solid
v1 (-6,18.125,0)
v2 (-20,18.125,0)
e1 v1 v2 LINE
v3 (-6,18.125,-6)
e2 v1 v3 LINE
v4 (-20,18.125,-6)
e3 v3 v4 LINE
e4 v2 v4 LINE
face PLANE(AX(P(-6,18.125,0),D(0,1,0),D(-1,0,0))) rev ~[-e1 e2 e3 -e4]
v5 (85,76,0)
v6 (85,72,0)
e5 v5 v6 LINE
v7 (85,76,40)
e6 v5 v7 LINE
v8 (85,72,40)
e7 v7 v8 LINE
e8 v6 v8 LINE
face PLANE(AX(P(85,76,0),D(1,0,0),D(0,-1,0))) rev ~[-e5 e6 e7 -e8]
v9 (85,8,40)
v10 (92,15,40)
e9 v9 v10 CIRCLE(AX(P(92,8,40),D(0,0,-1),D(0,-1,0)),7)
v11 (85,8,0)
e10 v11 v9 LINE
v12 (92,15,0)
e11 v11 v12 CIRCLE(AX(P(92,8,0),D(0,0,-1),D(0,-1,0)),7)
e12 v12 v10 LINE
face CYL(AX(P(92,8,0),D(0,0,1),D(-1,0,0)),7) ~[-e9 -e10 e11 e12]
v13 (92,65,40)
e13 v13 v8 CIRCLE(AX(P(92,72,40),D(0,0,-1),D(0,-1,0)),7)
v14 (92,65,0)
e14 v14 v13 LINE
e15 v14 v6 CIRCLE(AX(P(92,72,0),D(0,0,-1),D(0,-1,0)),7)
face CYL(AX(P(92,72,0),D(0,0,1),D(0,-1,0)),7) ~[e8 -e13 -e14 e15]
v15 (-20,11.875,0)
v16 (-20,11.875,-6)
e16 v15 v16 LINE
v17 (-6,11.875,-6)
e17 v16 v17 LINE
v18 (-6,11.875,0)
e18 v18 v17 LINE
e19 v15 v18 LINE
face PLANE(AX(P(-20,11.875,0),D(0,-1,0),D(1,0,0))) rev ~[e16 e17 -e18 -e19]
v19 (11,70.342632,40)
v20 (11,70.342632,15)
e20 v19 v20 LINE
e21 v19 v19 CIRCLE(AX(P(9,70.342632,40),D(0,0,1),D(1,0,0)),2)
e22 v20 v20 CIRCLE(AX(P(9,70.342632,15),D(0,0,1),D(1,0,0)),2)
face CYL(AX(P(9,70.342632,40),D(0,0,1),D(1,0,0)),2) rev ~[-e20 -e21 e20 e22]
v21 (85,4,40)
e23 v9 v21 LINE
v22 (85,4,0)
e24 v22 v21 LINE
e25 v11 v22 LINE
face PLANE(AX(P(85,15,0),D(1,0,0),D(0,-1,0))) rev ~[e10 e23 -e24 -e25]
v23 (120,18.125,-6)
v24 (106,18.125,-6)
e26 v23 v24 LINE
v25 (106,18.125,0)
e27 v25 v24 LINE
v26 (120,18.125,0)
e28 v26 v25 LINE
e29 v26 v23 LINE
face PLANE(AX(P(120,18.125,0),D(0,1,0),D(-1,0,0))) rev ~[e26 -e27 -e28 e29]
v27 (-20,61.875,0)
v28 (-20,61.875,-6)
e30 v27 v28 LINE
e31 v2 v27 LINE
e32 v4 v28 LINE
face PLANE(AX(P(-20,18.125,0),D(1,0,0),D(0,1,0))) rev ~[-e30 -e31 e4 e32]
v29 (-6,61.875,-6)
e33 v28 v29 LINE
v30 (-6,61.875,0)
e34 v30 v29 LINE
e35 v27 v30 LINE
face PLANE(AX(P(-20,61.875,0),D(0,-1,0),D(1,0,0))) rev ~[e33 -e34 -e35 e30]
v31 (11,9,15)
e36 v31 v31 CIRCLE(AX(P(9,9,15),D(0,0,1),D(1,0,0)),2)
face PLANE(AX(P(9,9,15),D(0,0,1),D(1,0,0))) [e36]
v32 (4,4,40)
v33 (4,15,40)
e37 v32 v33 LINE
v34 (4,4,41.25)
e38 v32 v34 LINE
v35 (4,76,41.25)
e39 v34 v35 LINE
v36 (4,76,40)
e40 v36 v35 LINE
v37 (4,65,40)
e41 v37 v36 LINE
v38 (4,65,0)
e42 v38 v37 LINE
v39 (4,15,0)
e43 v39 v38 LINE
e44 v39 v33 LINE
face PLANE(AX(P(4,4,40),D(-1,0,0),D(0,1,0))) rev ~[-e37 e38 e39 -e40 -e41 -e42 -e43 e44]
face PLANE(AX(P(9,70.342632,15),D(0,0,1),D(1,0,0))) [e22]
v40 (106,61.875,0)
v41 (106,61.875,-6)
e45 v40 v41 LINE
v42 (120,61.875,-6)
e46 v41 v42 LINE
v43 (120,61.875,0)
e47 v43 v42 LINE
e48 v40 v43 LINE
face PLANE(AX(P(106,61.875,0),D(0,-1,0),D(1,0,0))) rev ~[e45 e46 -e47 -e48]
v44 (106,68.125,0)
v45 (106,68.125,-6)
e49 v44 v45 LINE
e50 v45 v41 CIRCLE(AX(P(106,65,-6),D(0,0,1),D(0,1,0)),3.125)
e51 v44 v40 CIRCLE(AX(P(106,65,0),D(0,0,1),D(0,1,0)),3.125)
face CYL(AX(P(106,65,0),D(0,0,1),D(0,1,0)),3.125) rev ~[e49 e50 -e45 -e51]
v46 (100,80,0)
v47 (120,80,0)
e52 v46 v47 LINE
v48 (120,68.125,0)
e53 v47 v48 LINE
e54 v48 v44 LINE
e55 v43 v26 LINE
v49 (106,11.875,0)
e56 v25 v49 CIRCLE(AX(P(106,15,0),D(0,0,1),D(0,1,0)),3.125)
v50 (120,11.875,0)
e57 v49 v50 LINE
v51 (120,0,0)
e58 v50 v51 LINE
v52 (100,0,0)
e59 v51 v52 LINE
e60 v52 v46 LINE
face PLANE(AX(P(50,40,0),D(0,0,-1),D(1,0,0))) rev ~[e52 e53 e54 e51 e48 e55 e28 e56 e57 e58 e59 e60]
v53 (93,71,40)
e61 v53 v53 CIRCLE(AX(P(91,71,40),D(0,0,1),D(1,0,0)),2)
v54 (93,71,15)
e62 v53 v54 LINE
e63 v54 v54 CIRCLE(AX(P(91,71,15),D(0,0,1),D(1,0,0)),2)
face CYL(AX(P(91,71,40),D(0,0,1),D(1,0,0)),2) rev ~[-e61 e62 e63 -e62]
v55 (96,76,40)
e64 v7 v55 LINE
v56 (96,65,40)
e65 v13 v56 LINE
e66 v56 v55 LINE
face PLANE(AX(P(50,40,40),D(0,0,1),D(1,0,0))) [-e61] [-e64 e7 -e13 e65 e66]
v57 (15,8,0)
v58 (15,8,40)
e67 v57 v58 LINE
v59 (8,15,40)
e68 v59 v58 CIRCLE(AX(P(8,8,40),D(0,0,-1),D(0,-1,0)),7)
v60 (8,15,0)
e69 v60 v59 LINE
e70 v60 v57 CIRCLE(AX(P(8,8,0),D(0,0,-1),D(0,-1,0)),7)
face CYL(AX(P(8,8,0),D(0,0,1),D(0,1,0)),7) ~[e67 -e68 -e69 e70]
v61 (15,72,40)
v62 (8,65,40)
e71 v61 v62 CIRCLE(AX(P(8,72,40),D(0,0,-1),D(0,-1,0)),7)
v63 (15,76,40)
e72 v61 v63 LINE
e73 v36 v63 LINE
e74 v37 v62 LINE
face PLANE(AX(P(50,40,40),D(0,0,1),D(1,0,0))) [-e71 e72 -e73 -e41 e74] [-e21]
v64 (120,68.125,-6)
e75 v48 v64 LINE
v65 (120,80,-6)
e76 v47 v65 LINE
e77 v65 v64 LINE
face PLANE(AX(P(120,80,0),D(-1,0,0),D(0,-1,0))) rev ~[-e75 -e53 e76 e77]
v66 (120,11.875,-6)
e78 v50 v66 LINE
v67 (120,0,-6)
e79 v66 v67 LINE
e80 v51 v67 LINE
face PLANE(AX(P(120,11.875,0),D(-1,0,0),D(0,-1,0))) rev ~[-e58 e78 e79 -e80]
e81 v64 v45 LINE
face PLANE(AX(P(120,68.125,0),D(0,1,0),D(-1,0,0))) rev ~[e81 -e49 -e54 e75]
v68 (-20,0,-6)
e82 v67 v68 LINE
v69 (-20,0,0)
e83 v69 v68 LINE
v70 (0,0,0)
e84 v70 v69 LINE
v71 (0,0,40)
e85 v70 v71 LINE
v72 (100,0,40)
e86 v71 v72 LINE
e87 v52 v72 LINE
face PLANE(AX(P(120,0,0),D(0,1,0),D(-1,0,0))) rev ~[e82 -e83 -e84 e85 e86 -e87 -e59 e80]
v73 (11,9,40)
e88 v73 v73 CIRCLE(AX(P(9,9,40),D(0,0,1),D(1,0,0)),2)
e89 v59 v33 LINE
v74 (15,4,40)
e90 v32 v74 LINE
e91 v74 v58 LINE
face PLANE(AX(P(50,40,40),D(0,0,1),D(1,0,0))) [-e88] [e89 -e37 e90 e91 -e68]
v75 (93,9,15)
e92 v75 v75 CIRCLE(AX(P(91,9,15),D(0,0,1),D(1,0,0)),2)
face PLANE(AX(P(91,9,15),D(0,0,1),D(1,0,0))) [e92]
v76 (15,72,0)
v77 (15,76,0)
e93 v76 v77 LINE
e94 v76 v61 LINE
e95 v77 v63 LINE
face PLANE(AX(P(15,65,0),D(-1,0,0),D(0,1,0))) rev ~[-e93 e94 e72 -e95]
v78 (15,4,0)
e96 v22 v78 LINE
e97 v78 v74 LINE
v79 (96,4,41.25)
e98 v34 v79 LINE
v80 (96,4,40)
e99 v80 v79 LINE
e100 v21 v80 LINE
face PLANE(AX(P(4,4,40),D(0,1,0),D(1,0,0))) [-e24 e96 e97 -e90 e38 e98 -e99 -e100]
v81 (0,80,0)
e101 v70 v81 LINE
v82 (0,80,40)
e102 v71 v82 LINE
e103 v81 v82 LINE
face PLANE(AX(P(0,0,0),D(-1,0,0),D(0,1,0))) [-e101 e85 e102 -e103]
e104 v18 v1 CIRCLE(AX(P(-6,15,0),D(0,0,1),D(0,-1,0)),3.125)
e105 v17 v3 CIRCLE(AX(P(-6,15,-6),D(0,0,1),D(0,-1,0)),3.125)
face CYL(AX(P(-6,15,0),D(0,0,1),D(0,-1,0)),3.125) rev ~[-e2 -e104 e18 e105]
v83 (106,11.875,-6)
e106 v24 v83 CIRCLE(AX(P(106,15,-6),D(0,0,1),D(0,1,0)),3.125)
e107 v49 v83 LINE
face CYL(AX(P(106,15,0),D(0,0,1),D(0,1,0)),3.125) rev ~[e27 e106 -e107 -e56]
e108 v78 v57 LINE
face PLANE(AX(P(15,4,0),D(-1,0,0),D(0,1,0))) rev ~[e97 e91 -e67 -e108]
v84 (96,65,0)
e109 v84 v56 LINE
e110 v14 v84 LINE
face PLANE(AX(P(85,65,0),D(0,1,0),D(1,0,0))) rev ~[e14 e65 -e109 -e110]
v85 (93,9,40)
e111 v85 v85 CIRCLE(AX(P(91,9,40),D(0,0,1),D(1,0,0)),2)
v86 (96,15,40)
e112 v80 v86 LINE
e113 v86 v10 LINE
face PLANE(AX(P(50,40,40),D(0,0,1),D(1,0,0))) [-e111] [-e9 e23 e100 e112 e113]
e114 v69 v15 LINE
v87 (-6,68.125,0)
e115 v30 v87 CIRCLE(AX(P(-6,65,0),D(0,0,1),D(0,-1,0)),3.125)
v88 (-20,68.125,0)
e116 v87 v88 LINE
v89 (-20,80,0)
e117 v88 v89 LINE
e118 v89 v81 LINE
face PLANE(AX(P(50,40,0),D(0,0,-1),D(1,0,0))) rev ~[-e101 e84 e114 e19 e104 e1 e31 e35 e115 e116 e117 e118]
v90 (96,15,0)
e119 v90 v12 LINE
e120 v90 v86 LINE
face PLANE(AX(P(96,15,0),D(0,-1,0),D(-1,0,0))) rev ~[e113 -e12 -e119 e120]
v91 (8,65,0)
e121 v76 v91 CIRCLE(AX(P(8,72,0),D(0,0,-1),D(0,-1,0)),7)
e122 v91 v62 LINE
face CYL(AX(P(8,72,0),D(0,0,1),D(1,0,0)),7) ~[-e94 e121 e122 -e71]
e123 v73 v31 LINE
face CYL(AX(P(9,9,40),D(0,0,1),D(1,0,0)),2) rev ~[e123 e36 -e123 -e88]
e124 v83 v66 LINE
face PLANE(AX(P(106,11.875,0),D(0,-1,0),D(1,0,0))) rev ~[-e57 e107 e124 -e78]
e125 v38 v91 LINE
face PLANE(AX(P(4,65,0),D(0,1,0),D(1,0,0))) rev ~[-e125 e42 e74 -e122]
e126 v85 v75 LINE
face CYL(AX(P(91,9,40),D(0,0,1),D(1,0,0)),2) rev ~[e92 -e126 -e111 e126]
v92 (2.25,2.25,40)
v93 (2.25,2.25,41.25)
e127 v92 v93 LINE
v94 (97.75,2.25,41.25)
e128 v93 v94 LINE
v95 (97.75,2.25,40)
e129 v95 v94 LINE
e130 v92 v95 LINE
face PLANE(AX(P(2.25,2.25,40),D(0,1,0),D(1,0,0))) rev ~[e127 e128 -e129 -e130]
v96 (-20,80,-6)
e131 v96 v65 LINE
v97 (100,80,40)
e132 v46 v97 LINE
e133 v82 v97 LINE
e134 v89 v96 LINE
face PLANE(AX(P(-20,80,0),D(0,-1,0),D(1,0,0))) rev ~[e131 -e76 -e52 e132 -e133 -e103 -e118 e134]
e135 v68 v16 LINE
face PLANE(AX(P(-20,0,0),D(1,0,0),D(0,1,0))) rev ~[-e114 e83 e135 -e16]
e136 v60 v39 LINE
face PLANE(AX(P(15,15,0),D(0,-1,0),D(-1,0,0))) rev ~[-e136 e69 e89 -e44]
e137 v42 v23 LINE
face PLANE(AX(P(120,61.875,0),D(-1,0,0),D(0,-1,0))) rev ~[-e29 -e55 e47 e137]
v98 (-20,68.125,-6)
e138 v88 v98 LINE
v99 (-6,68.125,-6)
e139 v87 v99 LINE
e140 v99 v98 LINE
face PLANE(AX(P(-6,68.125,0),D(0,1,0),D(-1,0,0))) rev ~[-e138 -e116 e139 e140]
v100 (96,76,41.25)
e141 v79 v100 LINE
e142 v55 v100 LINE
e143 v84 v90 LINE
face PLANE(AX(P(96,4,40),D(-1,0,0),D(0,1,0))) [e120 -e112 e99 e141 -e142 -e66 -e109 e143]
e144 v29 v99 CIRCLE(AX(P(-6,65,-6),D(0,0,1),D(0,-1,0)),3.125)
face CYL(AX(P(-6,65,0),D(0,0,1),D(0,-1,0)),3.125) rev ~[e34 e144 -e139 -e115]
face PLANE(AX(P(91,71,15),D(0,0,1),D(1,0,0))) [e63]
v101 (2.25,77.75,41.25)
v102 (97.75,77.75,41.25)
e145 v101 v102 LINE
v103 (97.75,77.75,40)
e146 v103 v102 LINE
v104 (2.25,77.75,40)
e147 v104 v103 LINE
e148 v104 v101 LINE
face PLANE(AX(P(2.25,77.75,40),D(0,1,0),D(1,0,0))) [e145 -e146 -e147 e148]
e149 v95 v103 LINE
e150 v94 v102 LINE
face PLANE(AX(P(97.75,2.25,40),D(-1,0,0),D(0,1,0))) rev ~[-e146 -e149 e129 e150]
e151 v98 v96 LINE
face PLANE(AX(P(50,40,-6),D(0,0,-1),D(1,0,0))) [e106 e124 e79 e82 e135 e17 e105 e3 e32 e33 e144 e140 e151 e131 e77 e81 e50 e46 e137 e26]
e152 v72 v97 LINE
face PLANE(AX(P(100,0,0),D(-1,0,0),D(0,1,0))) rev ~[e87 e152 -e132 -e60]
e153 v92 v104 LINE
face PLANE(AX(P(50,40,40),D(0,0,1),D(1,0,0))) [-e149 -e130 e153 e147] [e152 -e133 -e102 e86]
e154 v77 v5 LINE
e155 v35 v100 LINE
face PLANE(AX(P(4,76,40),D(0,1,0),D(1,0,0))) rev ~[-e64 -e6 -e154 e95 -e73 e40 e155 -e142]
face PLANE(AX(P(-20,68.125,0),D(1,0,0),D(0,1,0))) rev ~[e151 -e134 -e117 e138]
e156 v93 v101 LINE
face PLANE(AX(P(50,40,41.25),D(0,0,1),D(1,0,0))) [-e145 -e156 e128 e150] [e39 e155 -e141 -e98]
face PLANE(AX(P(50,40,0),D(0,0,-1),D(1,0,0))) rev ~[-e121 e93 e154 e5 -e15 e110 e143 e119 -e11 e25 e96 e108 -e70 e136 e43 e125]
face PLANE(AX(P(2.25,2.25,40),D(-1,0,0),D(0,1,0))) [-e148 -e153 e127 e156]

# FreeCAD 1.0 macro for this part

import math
import FreeCAD as App
import Part
import Sketcher
from FreeCAD import Vector
Q = App.Units.Quantity


def edges_at(feature, points):
    """Names of the edges that pass closest to the given points."""
    edges = feature.Shape.Edges
    near = lambda p: min(range(len(edges)), key=lambda i: edges[i].distToShape(Part.Vertex(*p))[0])
    return sorted({f"Edge{near(p) + 1}" for p in points})


def add_polygon(sketch, points):
    """Adds a closed chain of lines whose ends are joined by coincident constraints."""
    first, n = sketch.GeometryCount, len(points)
    for a, b in zip(points, points[1:] + points[:1]):
        sketch.addGeometry(Part.LineSegment(App.Vector(*a, 0), App.Vector(*b, 0)), False)
    for i in range(n):
        sketch.addConstraint(Sketcher.Constraint("Coincident", first + i, 2, first + (i + 1) % n, 1))

doc = App.newDocument("Part")
body = doc.addObject("PartDesign::Body", "Body")

# Sketch on XY plane
sketch1 = body.newObject("Sketcher::SketchObject", "Sketch")
sketch1.AttachmentSupport = (doc.getObject("XY_Plane"), [""])
sketch1.MapMode = "FlatFace"
add_polygon(sketch1, [(0, 80), (0, 0), (100, 0), (100, 80)])  # lines 0-3
add_polygon(sketch1, [(85, 15), (85, 4), (15, 4), (15, 15), (4, 15), (4, 65), (15, 65), (15, 76), (85, 76), (85, 65), (96, 65), (96, 15)])  # lines 4-15
sketch1.addConstraint([
    Sketcher.Constraint("Vertical", 0),
    Sketcher.Constraint("Horizontal", 1),
    Sketcher.Constraint("Vertical", 2),
    Sketcher.Constraint("Horizontal", 3),
    Sketcher.Constraint("Vertical", 4),
    Sketcher.Constraint("Horizontal", 5),
    Sketcher.Constraint("Vertical", 6),
    Sketcher.Constraint("Horizontal", 7),
    Sketcher.Constraint("Vertical", 8),
    Sketcher.Constraint("Horizontal", 9),
    Sketcher.Constraint("Vertical", 10),
    Sketcher.Constraint("Horizontal", 11),
    Sketcher.Constraint("Vertical", 12),
    Sketcher.Constraint("Horizontal", 13),
    Sketcher.Constraint("Vertical", 14),
    Sketcher.Constraint("Horizontal", 15),
    Sketcher.Constraint("Coincident", 0, 2, -1, 1),
    Sketcher.Constraint("Horizontal", 9, 2, 12, 2),
    Sketcher.Constraint("Horizontal", 7, 2, 14, 2),
    Sketcher.Constraint("Vertical", 6, 2, 9, 2),
    Sketcher.Constraint("Vertical", 4, 2, 11, 2),
    Sketcher.Constraint("Equal", 9, 13),
    Sketcher.Constraint("Equal", 15, 4),
    Sketcher.Constraint("Equal", 6, 10),
    Sketcher.Constraint("DistanceX", 1, 1, 1, 2, Q("100 mm")),
    Sketcher.Constraint("DistanceX", 5, 2, 5, 1, Q("70 mm")),
    Sketcher.Constraint("DistanceX", 7, 2, 7, 1, Q("11 mm")),
    Sketcher.Constraint("DistanceY", 0, 2, 0, 1, Q("80 mm")),
    Sketcher.Constraint("DistanceY", 8, 1, 8, 2, Q("50 mm")),
    Sketcher.Constraint("DistanceX", -1, 1, 4, 2, Q("85 mm")),
    Sketcher.Constraint("DistanceY", -1, 1, 4, 2, Q("4 mm")),
])
pad1 = body.newObject("PartDesign::Pad", "Pad")
pad1.Profile = sketch1
pad1.Length = 40

# Sketch on XY plane
sketch2 = body.newObject("Sketcher::SketchObject", "Sketch001")
sketch2.AttachmentSupport = (doc.getObject("XY_Plane"), [""])
sketch2.MapMode = "FlatFace"
sketch2.addGeometry([
    Part.LineSegment(Vector(120, 0, 0), Vector(-20, 0, 0)),  # 0
    Part.LineSegment(Vector(-20, 0, 0), Vector(-20, 11.9, 0)),  # 1
    Part.LineSegment(Vector(-20, 11.9, 0), Vector(-6, 11.9, 0)),  # 2
    Part.ArcOfCircle(Part.Circle(Vector(-6, 15, 0), Vector(0, 0, 1), 3.1), math.radians(-90), math.radians(90)),  # 3
    Part.LineSegment(Vector(-6, 18.1, 0), Vector(-20, 18.1, 0)),  # 4
    Part.LineSegment(Vector(-20, 18.1, 0), Vector(-20, 61.9, 0)),  # 5
    Part.LineSegment(Vector(-20, 61.9, 0), Vector(-6, 61.9, 0)),  # 6
    Part.ArcOfCircle(Part.Circle(Vector(-6, 65, 0), Vector(0, 0, 1), 3.1), math.radians(-90), math.radians(90)),  # 7
    Part.LineSegment(Vector(-6, 68.1, 0), Vector(-20, 68.1, 0)),  # 8
    Part.LineSegment(Vector(-20, 68.1, 0), Vector(-20, 80, 0)),  # 9
    Part.LineSegment(Vector(-20, 80, 0), Vector(120, 80, 0)),  # 10
    Part.LineSegment(Vector(120, 80, 0), Vector(120, 68.1, 0)),  # 11
    Part.LineSegment(Vector(120, 68.1, 0), Vector(106, 68.1, 0)),  # 12
    Part.ArcOfCircle(Part.Circle(Vector(106, 65, 0), Vector(0, 0, 1), 3.1), math.radians(90), math.radians(270)),  # 13
    Part.LineSegment(Vector(106, 61.9, 0), Vector(120, 61.9, 0)),  # 14
    Part.LineSegment(Vector(120, 61.9, 0), Vector(120, 18.1, 0)),  # 15
    Part.LineSegment(Vector(120, 18.1, 0), Vector(106, 18.1, 0)),  # 16
    Part.ArcOfCircle(Part.Circle(Vector(106, 15, 0), Vector(0, 0, 1), 3.1), math.radians(90), math.radians(270)),  # 17
    Part.LineSegment(Vector(106, 11.9, 0), Vector(120, 11.9, 0)),  # 18
    Part.LineSegment(Vector(120, 11.9, 0), Vector(120, 0, 0)),  # 19
], False)
sketch2.addConstraint([
    Sketcher.Constraint("Coincident", 0, 2, 1, 1),
    Sketcher.Constraint("Coincident", 1, 2, 2, 1),
    Sketcher.Constraint("Tangent", 2, 2, 3, 1),
    Sketcher.Constraint("Tangent", 3, 2, 4, 1),
    Sketcher.Constraint("Coincident", 4, 2, 5, 1),
    Sketcher.Constraint("Coincident", 5, 2, 6, 1),
    Sketcher.Constraint("Tangent", 6, 2, 7, 1),
    Sketcher.Constraint("Tangent", 7, 2, 8, 1),
    Sketcher.Constraint("Coincident", 8, 2, 9, 1),
    Sketcher.Constraint("Coincident", 9, 2, 10, 1),
    Sketcher.Constraint("Coincident", 10, 2, 11, 1),
    Sketcher.Constraint("Coincident", 11, 2, 12, 1),
    Sketcher.Constraint("Tangent", 12, 2, 13, 1),
    Sketcher.Constraint("Tangent", 13, 2, 14, 1),
    Sketcher.Constraint("Coincident", 14, 2, 15, 1),
    Sketcher.Constraint("Coincident", 15, 2, 16, 1),
    Sketcher.Constraint("Tangent", 16, 2, 17, 1),
    Sketcher.Constraint("Tangent", 17, 2, 18, 1),
    Sketcher.Constraint("Coincident", 18, 2, 19, 1),
    Sketcher.Constraint("Coincident", 19, 2, 0, 1),
    Sketcher.Constraint("Horizontal", 0),
    Sketcher.Constraint("Vertical", 1),
    Sketcher.Constraint("Horizontal", 2),
    Sketcher.Constraint("Horizontal", 4),
    Sketcher.Constraint("Vertical", 5),
    Sketcher.Constraint("Horizontal", 6),
    Sketcher.Constraint("Horizontal", 8),
    Sketcher.Constraint("Vertical", 9),
    Sketcher.Constraint("Horizontal", 10),
    Sketcher.Constraint("Vertical", 11),
    Sketcher.Constraint("Horizontal", 12),
    Sketcher.Constraint("Horizontal", 14),
    Sketcher.Constraint("Vertical", 15),
    Sketcher.Constraint("Horizontal", 16),
    Sketcher.Constraint("Horizontal", 18),
    Sketcher.Constraint("Vertical", 19),
    Sketcher.Constraint("Equal", 3, 7),
    Sketcher.Constraint("Equal", 7, 13),
    Sketcher.Constraint("Equal", 13, 17),
    Sketcher.Constraint("PointOnObject", 0, 2, -1),
    Sketcher.Constraint("Horizontal", 7, 3, 13, 3),
    Sketcher.Constraint("Horizontal", 3, 3, 17, 3),
    Sketcher.Constraint("Vertical", 3, 3, 7, 3),
    Sketcher.Constraint("Vertical", 13, 3, 17, 3),
    Sketcher.Constraint("Vertical", 1, 2, 4, 2),
    Sketcher.Constraint("Vertical", 5, 2, 8, 2),
    Sketcher.Constraint("Vertical", 11, 2, 14, 2),
    Sketcher.Constraint("Vertical", 15, 2, 18, 2),
    Sketcher.Constraint("Equal", 8, 12),
    Sketcher.Constraint("Equal", 1, 9),
    Sketcher.Constraint("DistanceX", 0, 2, 0, 1, Q("140 mm")),
    Sketcher.Constraint("DistanceX", 2, 1, 2, 2, Q("14 mm")),
    Sketcher.Constraint("DistanceX", 3, 3, -1, 1, Q("6 mm")),
    Sketcher.Constraint("DistanceY", -1, 1, 3, 3, Q("15 mm")),
    Sketcher.Constraint("DistanceY", -1, 1, 7, 3, Q("65 mm")),
    Sketcher.Constraint("Radius", 3, Q("3.125 mm")),
])
pad2 = body.newObject("PartDesign::Pad", "Pad001")
pad2.Profile = sketch2
pad2.Length = 6
pad2.Reversed = True
doc.recompute()

fillet = body.newObject("PartDesign::Fillet", "Fillet")
fillet.Base = (pad2, edges_at(pad2, [
    (15, 65, 20),
    (15, 15, 20),
    (85, 65, 20),
    (85, 15, 20),
]))
fillet.Radius = 7

# Sketch on XY plane
sketch3 = body.newObject("Sketcher::SketchObject", "Sketch002")
sketch3.AttachmentSupport = (doc.getObject("XY_Plane"), [""])
sketch3.MapMode = "FlatFace"
sketch3.AttachmentOffset = App.Placement(Vector(0, 0, 40), App.Rotation())
add_polygon(sketch3, [(2, 78), (2, 2), (98, 2), (98, 78)])  # lines 0-3
add_polygon(sketch3, [(96, 4), (4, 4), (4, 76), (96, 76)])  # lines 4-7
sketch3.addConstraint([
    Sketcher.Constraint("Vertical", 0),
    Sketcher.Constraint("Horizontal", 1),
    Sketcher.Constraint("Vertical", 2),
    Sketcher.Constraint("Horizontal", 3),
    Sketcher.Constraint("Horizontal", 4),
    Sketcher.Constraint("Vertical", 5),
    Sketcher.Constraint("Horizontal", 6),
    Sketcher.Constraint("Vertical", 7),
    Sketcher.Constraint("DistanceX", 4, 2, 4, 1, Q("92 mm")),
    Sketcher.Constraint("DistanceY", 5, 1, 5, 2, Q("72 mm")),
    Sketcher.Constraint("DistanceX", 1, 1, 1, 2, Q("95.5 mm")),
    Sketcher.Constraint("DistanceY", 0, 2, 0, 1, Q("75.5 mm")),
    Sketcher.Constraint("DistanceX", -1, 1, 4, 2, Q("4 mm")),
    Sketcher.Constraint("DistanceY", -1, 1, 4, 2, Q("4 mm")),
    Sketcher.Constraint("DistanceX", -1, 1, 0, 2, Q("2.25 mm")),
    Sketcher.Constraint("DistanceY", -1, 1, 0, 2, Q("2.25 mm")),
])
pad3 = body.newObject("PartDesign::Pad", "Pad002")
pad3.Profile = sketch3
pad3.Length = 1.25

# Sketch on XY plane
sketch4 = body.newObject("Sketcher::SketchObject", "Sketch003")
sketch4.AttachmentSupport = (doc.getObject("XY_Plane"), [""])
sketch4.MapMode = "FlatFace"
sketch4.AttachmentOffset = App.Placement(Vector(0, 0, 40), App.Rotation())
sketch4.addGeometry([
    Part.Circle(Vector(9, 9, 0), Vector(0, 0, 1), 2),
    Part.Circle(Vector(9, 70.3, 0), Vector(0, 0, 1), 2),
    Part.Circle(Vector(91, 71, 0), Vector(0, 0, 1), 2),
    Part.Circle(Vector(91, 9, 0), Vector(0, 0, 1), 2),
], False)
sketch4.addConstraint([
    Sketcher.Constraint("Equal", 0, 1),
    Sketcher.Constraint("Equal", 1, 2),
    Sketcher.Constraint("Equal", 2, 3),
    Sketcher.Constraint("Horizontal", 0, 3, 3, 3),
    Sketcher.Constraint("Vertical", 0, 3, 1, 3),
    Sketcher.Constraint("Vertical", 2, 3, 3, 3),
    Sketcher.Constraint("Diameter", 0, Q("4 mm")),
    Sketcher.Constraint("DistanceX", -1, 1, 0, 3, Q("9 mm")),
    Sketcher.Constraint("DistanceY", -1, 1, 0, 3, Q("9 mm")),
    Sketcher.Constraint("DistanceX", -1, 1, 2, 3, Q("91 mm")),
    Sketcher.Constraint("DistanceY", -1, 1, 2, 3, Q("71 mm")),
    Sketcher.Constraint("DistanceY", -1, 1, 1, 3, Q("70.342632 mm")),
])
pocket1 = body.newObject("PartDesign::Pocket", "Pocket")
pocket1.Profile = sketch4
pocket1.Length = 25

doc.recompute()
